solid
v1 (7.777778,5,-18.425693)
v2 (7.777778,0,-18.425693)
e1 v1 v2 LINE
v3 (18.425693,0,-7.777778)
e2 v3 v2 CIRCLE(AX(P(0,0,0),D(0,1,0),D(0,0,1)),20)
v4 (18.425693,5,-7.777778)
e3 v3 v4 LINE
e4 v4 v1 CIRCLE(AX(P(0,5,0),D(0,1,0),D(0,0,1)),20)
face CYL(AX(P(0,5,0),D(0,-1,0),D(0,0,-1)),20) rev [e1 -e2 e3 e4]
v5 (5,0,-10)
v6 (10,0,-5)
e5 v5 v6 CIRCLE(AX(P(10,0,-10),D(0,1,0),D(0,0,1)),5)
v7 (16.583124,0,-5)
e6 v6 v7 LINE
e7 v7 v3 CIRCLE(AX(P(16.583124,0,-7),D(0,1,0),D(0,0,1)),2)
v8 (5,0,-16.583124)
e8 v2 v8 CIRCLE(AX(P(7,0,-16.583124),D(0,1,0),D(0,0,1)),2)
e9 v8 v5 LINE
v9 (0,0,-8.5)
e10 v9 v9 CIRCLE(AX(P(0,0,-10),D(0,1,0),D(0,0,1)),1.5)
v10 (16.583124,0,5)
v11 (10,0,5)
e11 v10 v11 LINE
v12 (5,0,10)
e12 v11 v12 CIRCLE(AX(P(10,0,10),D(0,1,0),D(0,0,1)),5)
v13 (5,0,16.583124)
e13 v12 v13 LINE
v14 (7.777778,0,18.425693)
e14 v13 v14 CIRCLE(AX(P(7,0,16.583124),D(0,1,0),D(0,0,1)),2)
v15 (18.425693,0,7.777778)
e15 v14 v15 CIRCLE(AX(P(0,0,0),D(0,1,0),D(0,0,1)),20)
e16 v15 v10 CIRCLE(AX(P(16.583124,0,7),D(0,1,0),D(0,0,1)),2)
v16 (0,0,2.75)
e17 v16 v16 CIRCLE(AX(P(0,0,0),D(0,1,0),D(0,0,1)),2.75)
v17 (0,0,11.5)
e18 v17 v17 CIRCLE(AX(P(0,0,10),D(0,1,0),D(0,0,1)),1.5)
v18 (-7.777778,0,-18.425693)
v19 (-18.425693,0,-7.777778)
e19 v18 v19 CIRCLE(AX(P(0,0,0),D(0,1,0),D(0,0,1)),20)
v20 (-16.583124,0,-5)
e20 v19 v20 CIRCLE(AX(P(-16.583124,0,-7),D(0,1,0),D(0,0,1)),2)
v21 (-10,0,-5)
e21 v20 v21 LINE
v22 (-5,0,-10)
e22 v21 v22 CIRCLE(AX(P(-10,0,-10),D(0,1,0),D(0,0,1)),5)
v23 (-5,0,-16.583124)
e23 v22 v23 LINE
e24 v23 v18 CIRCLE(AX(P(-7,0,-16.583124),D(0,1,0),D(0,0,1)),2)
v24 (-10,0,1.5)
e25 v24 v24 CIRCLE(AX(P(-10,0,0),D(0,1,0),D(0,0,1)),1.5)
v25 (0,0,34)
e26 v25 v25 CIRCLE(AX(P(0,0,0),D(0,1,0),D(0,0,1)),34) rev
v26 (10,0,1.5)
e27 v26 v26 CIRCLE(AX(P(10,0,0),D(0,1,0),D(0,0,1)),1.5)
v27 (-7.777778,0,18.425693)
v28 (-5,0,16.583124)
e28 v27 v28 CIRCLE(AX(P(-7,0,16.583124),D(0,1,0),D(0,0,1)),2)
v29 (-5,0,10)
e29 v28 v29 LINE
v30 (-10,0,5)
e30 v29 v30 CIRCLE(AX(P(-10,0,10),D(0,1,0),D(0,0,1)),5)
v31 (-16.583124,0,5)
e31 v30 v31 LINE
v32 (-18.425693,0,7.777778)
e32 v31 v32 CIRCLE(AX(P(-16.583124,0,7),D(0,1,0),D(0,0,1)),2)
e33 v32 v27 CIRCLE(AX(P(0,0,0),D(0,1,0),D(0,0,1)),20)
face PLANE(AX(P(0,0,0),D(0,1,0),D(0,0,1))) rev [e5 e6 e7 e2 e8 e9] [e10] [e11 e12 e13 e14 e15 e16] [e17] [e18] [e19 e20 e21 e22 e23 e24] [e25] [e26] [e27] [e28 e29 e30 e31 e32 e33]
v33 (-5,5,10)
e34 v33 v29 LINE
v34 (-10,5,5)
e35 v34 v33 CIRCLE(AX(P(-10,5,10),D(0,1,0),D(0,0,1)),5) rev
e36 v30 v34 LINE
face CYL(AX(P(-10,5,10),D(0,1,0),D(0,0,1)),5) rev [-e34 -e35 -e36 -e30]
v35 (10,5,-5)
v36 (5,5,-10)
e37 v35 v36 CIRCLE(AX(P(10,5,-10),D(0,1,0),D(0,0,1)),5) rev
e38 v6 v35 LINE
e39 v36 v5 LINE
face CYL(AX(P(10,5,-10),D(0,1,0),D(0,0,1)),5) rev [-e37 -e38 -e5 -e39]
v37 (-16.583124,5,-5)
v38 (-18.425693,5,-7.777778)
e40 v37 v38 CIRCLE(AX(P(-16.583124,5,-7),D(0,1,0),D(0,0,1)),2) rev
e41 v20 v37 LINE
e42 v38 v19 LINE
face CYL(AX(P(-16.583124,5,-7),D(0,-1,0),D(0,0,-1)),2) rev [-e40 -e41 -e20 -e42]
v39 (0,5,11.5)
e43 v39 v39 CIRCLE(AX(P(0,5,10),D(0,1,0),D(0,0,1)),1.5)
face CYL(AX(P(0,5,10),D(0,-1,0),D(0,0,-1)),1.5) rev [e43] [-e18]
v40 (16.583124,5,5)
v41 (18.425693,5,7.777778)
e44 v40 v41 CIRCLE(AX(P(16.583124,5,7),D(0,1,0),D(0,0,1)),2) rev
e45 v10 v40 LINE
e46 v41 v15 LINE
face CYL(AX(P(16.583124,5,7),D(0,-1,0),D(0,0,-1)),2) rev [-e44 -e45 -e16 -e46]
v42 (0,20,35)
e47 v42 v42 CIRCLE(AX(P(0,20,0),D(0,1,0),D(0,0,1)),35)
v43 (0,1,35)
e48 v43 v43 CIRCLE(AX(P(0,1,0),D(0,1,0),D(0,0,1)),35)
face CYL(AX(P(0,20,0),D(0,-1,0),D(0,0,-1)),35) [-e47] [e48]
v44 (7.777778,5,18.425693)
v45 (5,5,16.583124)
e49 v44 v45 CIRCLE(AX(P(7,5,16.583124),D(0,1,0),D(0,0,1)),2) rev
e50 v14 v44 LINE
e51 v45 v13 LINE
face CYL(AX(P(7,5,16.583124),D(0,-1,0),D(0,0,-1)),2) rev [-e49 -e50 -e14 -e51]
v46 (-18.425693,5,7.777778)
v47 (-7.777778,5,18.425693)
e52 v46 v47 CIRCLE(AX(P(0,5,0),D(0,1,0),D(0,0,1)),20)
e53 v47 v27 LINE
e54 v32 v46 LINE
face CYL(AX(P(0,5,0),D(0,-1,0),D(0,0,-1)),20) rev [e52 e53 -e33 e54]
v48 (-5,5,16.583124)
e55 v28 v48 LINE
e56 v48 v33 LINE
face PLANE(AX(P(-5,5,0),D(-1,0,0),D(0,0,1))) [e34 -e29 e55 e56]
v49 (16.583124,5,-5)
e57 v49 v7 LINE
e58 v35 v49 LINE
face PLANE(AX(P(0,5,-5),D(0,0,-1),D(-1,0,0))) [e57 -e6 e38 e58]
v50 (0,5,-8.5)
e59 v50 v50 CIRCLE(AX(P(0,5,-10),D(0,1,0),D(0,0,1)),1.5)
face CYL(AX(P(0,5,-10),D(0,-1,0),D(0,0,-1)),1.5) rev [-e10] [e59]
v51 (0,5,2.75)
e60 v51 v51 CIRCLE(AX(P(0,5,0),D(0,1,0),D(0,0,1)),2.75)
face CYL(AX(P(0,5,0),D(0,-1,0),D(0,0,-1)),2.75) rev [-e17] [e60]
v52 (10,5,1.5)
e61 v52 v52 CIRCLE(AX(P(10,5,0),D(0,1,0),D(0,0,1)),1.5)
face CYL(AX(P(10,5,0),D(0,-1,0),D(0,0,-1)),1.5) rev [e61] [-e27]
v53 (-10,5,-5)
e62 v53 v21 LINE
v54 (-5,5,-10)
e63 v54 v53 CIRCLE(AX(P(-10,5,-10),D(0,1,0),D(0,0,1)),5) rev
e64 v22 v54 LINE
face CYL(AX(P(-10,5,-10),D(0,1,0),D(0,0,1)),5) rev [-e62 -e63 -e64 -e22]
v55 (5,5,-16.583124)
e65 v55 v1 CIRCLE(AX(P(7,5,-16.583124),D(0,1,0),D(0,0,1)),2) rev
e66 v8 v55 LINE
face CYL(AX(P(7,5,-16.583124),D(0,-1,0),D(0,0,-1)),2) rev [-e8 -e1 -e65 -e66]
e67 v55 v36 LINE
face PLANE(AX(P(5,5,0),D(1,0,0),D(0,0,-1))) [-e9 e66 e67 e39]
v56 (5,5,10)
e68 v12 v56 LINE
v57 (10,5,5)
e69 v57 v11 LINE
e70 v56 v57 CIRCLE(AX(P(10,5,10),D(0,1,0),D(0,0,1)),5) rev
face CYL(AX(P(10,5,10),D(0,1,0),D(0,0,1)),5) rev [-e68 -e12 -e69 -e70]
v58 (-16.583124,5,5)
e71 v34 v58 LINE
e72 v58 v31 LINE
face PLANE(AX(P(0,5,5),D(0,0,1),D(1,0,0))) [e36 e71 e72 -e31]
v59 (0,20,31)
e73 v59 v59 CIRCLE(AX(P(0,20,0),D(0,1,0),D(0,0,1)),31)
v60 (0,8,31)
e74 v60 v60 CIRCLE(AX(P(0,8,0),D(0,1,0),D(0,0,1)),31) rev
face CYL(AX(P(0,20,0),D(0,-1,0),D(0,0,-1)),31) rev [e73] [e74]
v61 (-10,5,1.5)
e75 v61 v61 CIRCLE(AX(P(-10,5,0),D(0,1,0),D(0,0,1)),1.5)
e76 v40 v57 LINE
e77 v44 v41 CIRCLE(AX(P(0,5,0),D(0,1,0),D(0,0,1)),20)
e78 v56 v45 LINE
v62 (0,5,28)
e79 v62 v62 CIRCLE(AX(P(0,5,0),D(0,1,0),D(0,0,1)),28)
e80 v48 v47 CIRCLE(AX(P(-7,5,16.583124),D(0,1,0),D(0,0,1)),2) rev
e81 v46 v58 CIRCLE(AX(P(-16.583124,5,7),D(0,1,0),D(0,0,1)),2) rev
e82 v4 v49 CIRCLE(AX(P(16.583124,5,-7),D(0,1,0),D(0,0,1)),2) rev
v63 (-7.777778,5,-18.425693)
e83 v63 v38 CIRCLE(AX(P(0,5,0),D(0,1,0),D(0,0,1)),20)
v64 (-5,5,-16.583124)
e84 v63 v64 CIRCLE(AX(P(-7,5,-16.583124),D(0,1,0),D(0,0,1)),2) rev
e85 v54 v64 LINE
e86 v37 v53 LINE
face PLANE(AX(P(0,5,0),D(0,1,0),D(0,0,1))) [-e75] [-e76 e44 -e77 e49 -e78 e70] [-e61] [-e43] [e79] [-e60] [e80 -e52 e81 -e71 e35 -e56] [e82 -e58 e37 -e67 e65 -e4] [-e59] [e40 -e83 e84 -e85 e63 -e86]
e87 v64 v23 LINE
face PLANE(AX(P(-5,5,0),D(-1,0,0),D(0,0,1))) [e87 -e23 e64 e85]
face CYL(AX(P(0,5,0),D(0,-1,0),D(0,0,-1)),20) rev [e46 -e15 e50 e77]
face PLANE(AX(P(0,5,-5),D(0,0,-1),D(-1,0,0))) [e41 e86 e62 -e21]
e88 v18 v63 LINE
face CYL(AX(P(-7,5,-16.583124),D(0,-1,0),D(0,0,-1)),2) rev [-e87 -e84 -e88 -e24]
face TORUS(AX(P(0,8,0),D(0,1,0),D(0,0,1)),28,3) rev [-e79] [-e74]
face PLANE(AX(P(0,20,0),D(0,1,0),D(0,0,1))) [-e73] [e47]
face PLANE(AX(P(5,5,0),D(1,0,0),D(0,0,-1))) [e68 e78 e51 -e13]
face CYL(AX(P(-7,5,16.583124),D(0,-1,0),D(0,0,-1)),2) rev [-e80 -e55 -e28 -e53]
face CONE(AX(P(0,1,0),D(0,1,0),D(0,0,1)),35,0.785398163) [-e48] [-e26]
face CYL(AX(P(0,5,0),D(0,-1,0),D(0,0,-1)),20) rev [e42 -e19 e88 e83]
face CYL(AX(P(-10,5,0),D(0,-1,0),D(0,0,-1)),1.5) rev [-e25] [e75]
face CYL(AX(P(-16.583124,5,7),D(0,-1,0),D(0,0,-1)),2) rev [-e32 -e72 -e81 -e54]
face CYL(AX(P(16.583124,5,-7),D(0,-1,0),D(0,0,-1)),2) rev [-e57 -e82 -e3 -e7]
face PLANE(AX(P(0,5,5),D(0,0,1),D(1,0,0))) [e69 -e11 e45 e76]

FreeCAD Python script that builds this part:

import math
import FreeCAD as App
import Part
import Sketcher

V = App.Vector


def edges_at(feature, points):
    """Names of the edges that pass closest to the given points."""
    edges = feature.Shape.Edges
    near = lambda p: min(range(len(edges)), key=lambda i: edges[i].distToShape(Part.Vertex(*p))[0])
    return sorted({f"Edge{near(p) + 1}" for p in points})

doc = App.newDocument("Part")
body = doc.addObject("PartDesign::Body", "Body")

# Sketch on XZ plane
sketch1 = doc.addObject("Sketcher::SketchObject", "Sketch")
body.addObject(sketch1)
sketch1.AttachmentSupport = (doc.XZ_Plane, [""])
sketch1.MapMode = "FlatFace"
sketch1.addGeometry(Part.Circle(V(0, 0, 0), V(0, 0, 1), 31), False)
sketch1.addGeometry(Part.ArcOfCircle(Part.Circle(V(0, 0, 0), V(0, 0, 1), 20), math.radians(-166), math.radians(-104)), False)
sketch1.addGeometry(Part.LineSegment(V(-5, -19.4, 0), V(-5, -5, 0)), False)
sketch1.addGeometry(Part.LineSegment(V(-5, -5, 0), V(-19.4, -5, 0)), False)
sketch1.addGeometry(Part.Circle(V(0, -10, 0), V(0, 0, 1), 1.5), False)
sketch1.addGeometry(Part.Circle(V(0, 0, 0), V(0, 0, 1), 2.8), False)
sketch1.addGeometry(Part.Circle(V(-10, 0, 0), V(0, 0, 1), 1.5), False)
sketch1.addGeometry(Part.ArcOfCircle(Part.Circle(V(0, 0, 0), V(0, 0, 1), 20), math.radians(104), math.radians(166)), False)
sketch1.addGeometry(Part.LineSegment(V(-19.4, 5, 0), V(-5, 5, 0)), False)
sketch1.addGeometry(Part.LineSegment(V(-5, 5, 0), V(-5, 19.4, 0)), False)
sketch1.addGeometry(Part.ArcOfCircle(Part.Circle(V(0, 0, 0), V(0, 0, 1), 20), math.radians(-76), math.radians(-14)), False)
sketch1.addGeometry(Part.LineSegment(V(19.4, -5, 0), V(5, -5, 0)), False)
sketch1.addGeometry(Part.LineSegment(V(5, -5, 0), V(5, -19.4, 0)), False)
sketch1.addGeometry(Part.Circle(V(10, 0, 0), V(0, 0, 1), 1.5), False)
sketch1.addGeometry(Part.Circle(V(0, 10, 0), V(0, 0, 1), 1.5), False)
sketch1.addGeometry(Part.ArcOfCircle(Part.Circle(V(0, 0, 0), V(0, 0, 1), 20), math.radians(14), math.radians(76)), False)
sketch1.addGeometry(Part.LineSegment(V(5, 19.4, 0), V(5, 5, 0)), False)
sketch1.addGeometry(Part.LineSegment(V(5, 5, 0), V(19.4, 5, 0)), False)
sketch1.addConstraint(Sketcher.Constraint("Coincident", 1, 2, 2, 1))
sketch1.addConstraint(Sketcher.Constraint("Coincident", 2, 2, 3, 1))
sketch1.addConstraint(Sketcher.Constraint("Coincident", 3, 2, 1, 1))
sketch1.addConstraint(Sketcher.Constraint("Coincident", 7, 2, 8, 1))
sketch1.addConstraint(Sketcher.Constraint("Coincident", 8, 2, 9, 1))
sketch1.addConstraint(Sketcher.Constraint("Coincident", 9, 2, 7, 1))
sketch1.addConstraint(Sketcher.Constraint("Coincident", 10, 2, 11, 1))
sketch1.addConstraint(Sketcher.Constraint("Coincident", 11, 2, 12, 1))
sketch1.addConstraint(Sketcher.Constraint("Coincident", 12, 2, 10, 1))
sketch1.addConstraint(Sketcher.Constraint("Coincident", 15, 2, 16, 1))
sketch1.addConstraint(Sketcher.Constraint("Coincident", 16, 2, 17, 1))
sketch1.addConstraint(Sketcher.Constraint("Coincident", 17, 2, 15, 1))
sketch1.addConstraint(Sketcher.Constraint("Vertical", 2))
sketch1.addConstraint(Sketcher.Constraint("Horizontal", 3))
sketch1.addConstraint(Sketcher.Constraint("Horizontal", 8))
sketch1.addConstraint(Sketcher.Constraint("Vertical", 9))
sketch1.addConstraint(Sketcher.Constraint("Horizontal", 11))
sketch1.addConstraint(Sketcher.Constraint("Vertical", 12))
sketch1.addConstraint(Sketcher.Constraint("Vertical", 16))
sketch1.addConstraint(Sketcher.Constraint("Horizontal", 17))
sketch1.addConstraint(Sketcher.Constraint("Coincident", 0, 3, -1, 1))
sketch1.addConstraint(Sketcher.Constraint("Coincident", 1, 3, -1, 1))
sketch1.addConstraint(Sketcher.Constraint("Coincident", 5, 3, -1, 1))
sketch1.addConstraint(Sketcher.Constraint("Coincident", 7, 3, -1, 1))
sketch1.addConstraint(Sketcher.Constraint("Coincident", 10, 3, -1, 1))
sketch1.addConstraint(Sketcher.Constraint("Coincident", 15, 3, -1, 1))
sketch1.addConstraint(Sketcher.Constraint("Equal", 4, 6))
sketch1.addConstraint(Sketcher.Constraint("Equal", 1, 7))
sketch1.addConstraint(Sketcher.Constraint("Equal", 7, 10))
sketch1.addConstraint(Sketcher.Constraint("Equal", 6, 13))
sketch1.addConstraint(Sketcher.Constraint("Equal", 13, 14))
sketch1.addConstraint(Sketcher.Constraint("Equal", 10, 15))
sketch1.addConstraint(Sketcher.Constraint("Symmetric", 6, 3, 13, 3, -1, 1))
sketch1.addConstraint(Sketcher.Constraint("Symmetric", 4, 3, 14, 3, -1, 1))
sketch1.addConstraint(Sketcher.Constraint("Symmetric", 8, 2, 11, 2, -1, 1))
sketch1.addConstraint(Sketcher.Constraint("Symmetric", 2, 2, 16, 2, -1, 1))
sketch1.addConstraint(Sketcher.Constraint("Symmetric", 2, 2, 11, 2, -2))
sketch1.addConstraint(Sketcher.Constraint("PointOnObject", 4, 3, -2))
sketch1.addConstraint(Sketcher.Constraint("PointOnObject", 6, 3, -1))
sketch1.addConstraint(Sketcher.Constraint("Equal", 17, 2))
sketch1.addConstraint(Sketcher.Constraint("Diameter", 0, 62.0))
sketch1.addConstraint(Sketcher.Constraint("Diameter", 4, 3.0))
sketch1.addConstraint(Sketcher.Constraint("Radius", 1, 20.0))
sketch1.addConstraint(Sketcher.Constraint("Diameter", 5, 5.5))
sketch1.addConstraint(Sketcher.Constraint("DistanceY", 4, 3, -1, 1, 10.0))
sketch1.addConstraint(Sketcher.Constraint("DistanceX", 6, 3, -1, 1, 10.0))
sketch1.addConstraint(Sketcher.Constraint("DistanceX", 1, 2, -1, 1, 5.0))
pad1 = doc.addObject("PartDesign::Pad", "Pad")
body.addObject(pad1)
pad1.Profile = sketch1
pad1.Length = 5
pad1.Reversed = True

# Sketch on XZ plane
sketch2 = doc.addObject("Sketcher::SketchObject", "Sketch001")
body.addObject(sketch2)
sketch2.AttachmentSupport = (doc.XZ_Plane, [""])
sketch2.MapMode = "FlatFace"
sketch2.addGeometry(Part.Circle(V(0, 0, 0), V(0, 0, 1), 35), False)
sketch2.addGeometry(Part.Circle(V(0, 0, 0), V(0, 0, 1), 31), False)
sketch2.addConstraint(Sketcher.Constraint("Coincident", 0, 3, -1, 1))
sketch2.addConstraint(Sketcher.Constraint("Coincident", 1, 3, -1, 1))
sketch2.addConstraint(Sketcher.Constraint("Diameter", 0, 70.0))
sketch2.addConstraint(Sketcher.Constraint("Diameter", 1, 62.0))
pad2 = doc.addObject("PartDesign::Pad", "Pad001")
body.addObject(pad2)
pad2.Profile = sketch2
pad2.Length = 20
pad2.Reversed = True
doc.recompute()

fillet = doc.addObject("PartDesign::Fillet", "Fillet")
body.addObject(fillet)
fillet.Base = (pad2, edges_at(pad2, [
    (-5, 2.5, -5),
    (5, 2.5, -5),
    (-5, 2.5, 5),
    (5, 2.5, 5),
]))
fillet.Radius = 5
doc.recompute()

fillet2 = doc.addObject("PartDesign::Fillet", "Fillet001")
body.addObject(fillet2)
fillet2.Base = (fillet, edges_at(fillet, [
    (-19.365, 2.5, -5),
    (-5, 2.5, -19.365),
    (5, 2.5, -19.365),
    (19.365, 2.5, -5),
    (-5, 2.5, 19.365),
    (-19.365, 2.5, 5),
    (19.365, 2.5, 5),
    (5, 2.5, 19.365),
]))
fillet2.Radius = 2
doc.recompute()

chamfer = doc.addObject("PartDesign::Chamfer", "Chamfer")
body.addObject(chamfer)
chamfer.Base = (fillet2, edges_at(fillet2, [(0, 0, -35)]))
chamfer.Size = 1
doc.recompute()

fillet3 = doc.addObject("PartDesign::Fillet", "Fillet002")
body.addObject(fillet3)
fillet3.Base = (chamfer, edges_at(chamfer, [(0, 5, -31)]))
fillet3.Radius = 3

doc.recompute()
